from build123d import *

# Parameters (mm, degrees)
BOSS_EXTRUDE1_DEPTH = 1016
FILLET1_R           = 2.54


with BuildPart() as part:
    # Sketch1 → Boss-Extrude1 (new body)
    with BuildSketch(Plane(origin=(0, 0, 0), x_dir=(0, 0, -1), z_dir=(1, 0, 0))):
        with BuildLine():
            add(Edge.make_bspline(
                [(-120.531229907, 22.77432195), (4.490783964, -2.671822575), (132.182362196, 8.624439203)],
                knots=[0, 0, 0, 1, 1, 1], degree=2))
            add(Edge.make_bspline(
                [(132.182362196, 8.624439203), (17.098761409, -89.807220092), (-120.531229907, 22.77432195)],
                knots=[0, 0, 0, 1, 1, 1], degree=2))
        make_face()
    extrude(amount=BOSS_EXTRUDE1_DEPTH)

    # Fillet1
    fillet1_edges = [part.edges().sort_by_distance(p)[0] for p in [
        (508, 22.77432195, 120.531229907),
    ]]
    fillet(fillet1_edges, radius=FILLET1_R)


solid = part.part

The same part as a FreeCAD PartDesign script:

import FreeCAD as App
import Part
import Sketcher
from FreeCAD import Vector
Q = App.Units.Quantity


def edges_at(feature, points):
    """Names of the edges that pass closest to the given points."""
    edges = feature.Shape.Edges
    near = lambda p: min(range(len(edges)), key=lambda i: edges[i].distToShape(Part.Vertex(*p))[0])
    return sorted({f"Edge{near(p) + 1}" for p in points})

doc = App.newDocument("Part")
body = doc.addObject("PartDesign::Body", "Body")

# Sketch on YZ plane
sketch1 = body.newObject("Sketcher::SketchObject", "Sketch")
sketch1.AttachmentSupport = (doc.getObject("YZ_Plane"), [""])
sketch1.MapMode = "FlatFace"
sketch1.addGeometry(Part.BSplineCurve([Vector(22.774322, 120.53123, 0), Vector(-2.671823, -4.490784, 0), Vector(8.624439, -132.182362, 0)], [3, 3], [0, 1], False, 2, [1, 1, 1], False), False)
sketch1.addGeometry(Part.BSplineCurve([Vector(8.624439, -132.182362, 0), Vector(-89.80722, -17.098761, 0), Vector(22.774322, 120.53123, 0)], [3, 3], [0, 1], False, 2, [1, 1, 1], False), False)
sketch1.addConstraint(Sketcher.Constraint("Block", 0))
sketch1.addConstraint(Sketcher.Constraint("Block", 1))
pad1 = body.newObject("PartDesign::Pad", "Pad")
pad1.Profile = sketch1
pad1.Length = Q("40 in")
doc.recompute()

fillet = body.newObject("PartDesign::Fillet", "Fillet")
fillet.Base = (pad1, edges_at(pad1, [(508, 22.774, 120.531)]))
fillet.Radius = Q("0.1 in")

doc.recompute()
